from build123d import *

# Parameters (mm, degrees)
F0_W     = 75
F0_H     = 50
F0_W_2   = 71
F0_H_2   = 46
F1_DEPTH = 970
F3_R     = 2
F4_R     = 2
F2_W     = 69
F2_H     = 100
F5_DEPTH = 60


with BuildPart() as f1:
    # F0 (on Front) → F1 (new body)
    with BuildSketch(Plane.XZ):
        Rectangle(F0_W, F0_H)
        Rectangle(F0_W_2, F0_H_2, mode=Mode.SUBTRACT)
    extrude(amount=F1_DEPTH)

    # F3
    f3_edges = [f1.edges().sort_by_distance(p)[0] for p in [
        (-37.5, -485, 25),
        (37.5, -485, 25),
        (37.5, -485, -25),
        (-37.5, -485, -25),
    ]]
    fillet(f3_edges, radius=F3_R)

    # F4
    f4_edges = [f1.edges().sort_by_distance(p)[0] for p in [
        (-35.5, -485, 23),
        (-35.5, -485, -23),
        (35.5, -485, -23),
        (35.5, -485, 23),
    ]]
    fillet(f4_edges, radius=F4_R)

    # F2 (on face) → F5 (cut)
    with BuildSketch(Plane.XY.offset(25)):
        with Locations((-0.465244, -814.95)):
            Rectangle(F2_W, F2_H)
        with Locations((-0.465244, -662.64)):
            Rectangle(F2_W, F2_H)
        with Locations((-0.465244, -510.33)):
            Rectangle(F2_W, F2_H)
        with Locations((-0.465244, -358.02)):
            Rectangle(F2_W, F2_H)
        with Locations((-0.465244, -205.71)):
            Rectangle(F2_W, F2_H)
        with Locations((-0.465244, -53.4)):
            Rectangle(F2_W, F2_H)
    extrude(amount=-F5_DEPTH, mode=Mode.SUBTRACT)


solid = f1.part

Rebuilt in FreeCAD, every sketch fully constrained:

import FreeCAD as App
import Part
import Sketcher


def edges_at(feature, points):
    """Names of the edges that pass closest to the given points."""
    edges = feature.Shape.Edges
    near = lambda p: min(range(len(edges)), key=lambda i: edges[i].distToShape(Part.Vertex(*p))[0])
    return sorted({f"Edge{near(p) + 1}" for p in points})

doc = App.newDocument("Part")
body = doc.addObject("PartDesign::Body", "Body")

sketch1 = body.newObject("Sketcher::SketchObject", "Sketch")
sketch1.AttachmentSupport = (doc.getObject("XZ_Plane"), [""])
sketch1.MapMode = "FlatFace"
sketch1.addGeometry([
    Part.LineSegment(App.Vector(-38, 25, 0), App.Vector(-38, -25, 0)),
    Part.LineSegment(App.Vector(-38, -25, 0), App.Vector(38, -25, 0)),
    Part.LineSegment(App.Vector(38, -25, 0), App.Vector(38, 25, 0)),
    Part.LineSegment(App.Vector(38, 25, 0), App.Vector(-38, 25, 0)),
    Part.LineSegment(App.Vector(36, -23, 0), App.Vector(-36, -23, 0)),
    Part.LineSegment(App.Vector(-36, -23, 0), App.Vector(-36, 23, 0)),
    Part.LineSegment(App.Vector(-36, 23, 0), App.Vector(36, 23, 0)),
    Part.LineSegment(App.Vector(36, 23, 0), App.Vector(36, -23, 0)),
], False)
sketch1.addConstraint([
    Sketcher.Constraint("Coincident", 0, 2, 1, 1),
    Sketcher.Constraint("Coincident", 1, 2, 2, 1),
    Sketcher.Constraint("Coincident", 2, 2, 3, 1),
    Sketcher.Constraint("Coincident", 3, 2, 0, 1),
    Sketcher.Constraint("Coincident", 4, 2, 5, 1),
    Sketcher.Constraint("Coincident", 5, 2, 6, 1),
    Sketcher.Constraint("Coincident", 6, 2, 7, 1),
    Sketcher.Constraint("Coincident", 7, 2, 4, 1),
    Sketcher.Constraint("Vertical", 0),
    Sketcher.Constraint("Horizontal", 1),
    Sketcher.Constraint("Vertical", 2),
    Sketcher.Constraint("Horizontal", 3),
    Sketcher.Constraint("Horizontal", 4),
    Sketcher.Constraint("Vertical", 5),
    Sketcher.Constraint("Horizontal", 6),
    Sketcher.Constraint("Vertical", 7),
    Sketcher.Constraint("Symmetric", 0, 2, 2, 2, -1, 1),
    Sketcher.Constraint("Symmetric", 4, 2, 6, 2, -1, 1),
    Sketcher.Constraint("DistanceX", 1, 1, 1, 2, 75.0),
    Sketcher.Constraint("DistanceX", 4, 2, 4, 1, 71.0),
    Sketcher.Constraint("DistanceY", 0, 2, 0, 1, 50.0),
    Sketcher.Constraint("DistanceY", 5, 1, 5, 2, 46.0),
])
pad1 = body.newObject("PartDesign::Pad", "Pad")
pad1.Profile = sketch1
pad1.Length = 970
doc.recompute()

fillet = body.newObject("PartDesign::Fillet", "Fillet")
fillet.Base = (pad1, edges_at(pad1, [
    (-37.5, -485, 25),
    (37.5, -485, 25),
    (37.5, -485, -25),
    (-37.5, -485, -25),
]))
fillet.Radius = 2
doc.recompute()

fillet2 = body.newObject("PartDesign::Fillet", "Fillet001")
fillet2.Base = (fillet, edges_at(fillet, [
    (-35.5, -485, 23),
    (-35.5, -485, -23),
    (35.5, -485, -23),
    (35.5, -485, 23),
]))
fillet2.Radius = 2

sketch2 = body.newObject("Sketcher::SketchObject", "Sketch001")
sketch2.AttachmentSupport = (doc.getObject("XY_Plane"), [""])
sketch2.MapMode = "FlatFace"
sketch2.AttachmentOffset = App.Placement(App.Vector(0, 0, 25), App.Rotation())
sketch2.addGeometry([
    Part.LineSegment(App.Vector(-35, -765, 0), App.Vector(-35, -865, 0)),
    Part.LineSegment(App.Vector(-35, -865, 0), App.Vector(34, -865, 0)),
    Part.LineSegment(App.Vector(34, -865, 0), App.Vector(34, -765, 0)),
    Part.LineSegment(App.Vector(34, -765, 0), App.Vector(-35, -765, 0)),
    Part.LineSegment(App.Vector(-35, -613, 0), App.Vector(-35, -713, 0)),
    Part.LineSegment(App.Vector(-35, -713, 0), App.Vector(34, -713, 0)),
    Part.LineSegment(App.Vector(34, -713, 0), App.Vector(34, -613, 0)),
    Part.LineSegment(App.Vector(34, -613, 0), App.Vector(-35, -613, 0)),
    Part.LineSegment(App.Vector(-35, -460, 0), App.Vector(-35, -560, 0)),
    Part.LineSegment(App.Vector(-35, -560, 0), App.Vector(34, -560, 0)),
    Part.LineSegment(App.Vector(34, -560, 0), App.Vector(34, -460, 0)),
    Part.LineSegment(App.Vector(34, -460, 0), App.Vector(-35, -460, 0)),
    Part.LineSegment(App.Vector(-35, -308, 0), App.Vector(-35, -408, 0)),
    Part.LineSegment(App.Vector(-35, -408, 0), App.Vector(34, -408, 0)),
    Part.LineSegment(App.Vector(34, -408, 0), App.Vector(34, -308, 0)),
    Part.LineSegment(App.Vector(34, -308, 0), App.Vector(-35, -308, 0)),
    Part.LineSegment(App.Vector(-35, -156, 0), App.Vector(-35, -256, 0)),
    Part.LineSegment(App.Vector(-35, -256, 0), App.Vector(34, -256, 0)),
    Part.LineSegment(App.Vector(34, -256, 0), App.Vector(34, -156, 0)),
    Part.LineSegment(App.Vector(34, -156, 0), App.Vector(-35, -156, 0)),
    Part.LineSegment(App.Vector(-35, -3, 0), App.Vector(-35, -103, 0)),
    Part.LineSegment(App.Vector(-35, -103, 0), App.Vector(34, -103, 0)),
    Part.LineSegment(App.Vector(34, -103, 0), App.Vector(34, -3, 0)),
    Part.LineSegment(App.Vector(34, -3, 0), App.Vector(-35, -3, 0)),
], False)
sketch2.addConstraint([
    Sketcher.Constraint("Coincident", 0, 2, 1, 1),
    Sketcher.Constraint("Coincident", 1, 2, 2, 1),
    Sketcher.Constraint("Coincident", 2, 2, 3, 1),
    Sketcher.Constraint("Coincident", 3, 2, 0, 1),
    Sketcher.Constraint("Coincident", 4, 2, 5, 1),
    Sketcher.Constraint("Coincident", 5, 2, 6, 1),
    Sketcher.Constraint("Coincident", 6, 2, 7, 1),
    Sketcher.Constraint("Coincident", 7, 2, 4, 1),
    Sketcher.Constraint("Coincident", 8, 2, 9, 1),
    Sketcher.Constraint("Coincident", 9, 2, 10, 1),
    Sketcher.Constraint("Coincident", 10, 2, 11, 1),
    Sketcher.Constraint("Coincident", 11, 2, 8, 1),
    Sketcher.Constraint("Coincident", 12, 2, 13, 1),
    Sketcher.Constraint("Coincident", 13, 2, 14, 1),
    Sketcher.Constraint("Coincident", 14, 2, 15, 1),
    Sketcher.Constraint("Coincident", 15, 2, 12, 1),
    Sketcher.Constraint("Coincident", 16, 2, 17, 1),
    Sketcher.Constraint("Coincident", 17, 2, 18, 1),
    Sketcher.Constraint("Coincident", 18, 2, 19, 1),
    Sketcher.Constraint("Coincident", 19, 2, 16, 1),
    Sketcher.Constraint("Coincident", 20, 2, 21, 1),
    Sketcher.Constraint("Coincident", 21, 2, 22, 1),
    Sketcher.Constraint("Coincident", 22, 2, 23, 1),
    Sketcher.Constraint("Coincident", 23, 2, 20, 1),
    Sketcher.Constraint("Vertical", 0),
    Sketcher.Constraint("Horizontal", 1),
    Sketcher.Constraint("Vertical", 2),
    Sketcher.Constraint("Horizontal", 3),
    Sketcher.Constraint("Vertical", 4),
    Sketcher.Constraint("Horizontal", 5),
    Sketcher.Constraint("Vertical", 6),
    Sketcher.Constraint("Horizontal", 7),
    Sketcher.Constraint("Vertical", 8),
    Sketcher.Constraint("Horizontal", 9),
    Sketcher.Constraint("Vertical", 10),
    Sketcher.Constraint("Horizontal", 11),
    Sketcher.Constraint("Vertical", 12),
    Sketcher.Constraint("Horizontal", 13),
    Sketcher.Constraint("Vertical", 14),
    Sketcher.Constraint("Horizontal", 15),
    Sketcher.Constraint("Vertical", 16),
    Sketcher.Constraint("Horizontal", 17),
    Sketcher.Constraint("Vertical", 18),
    Sketcher.Constraint("Horizontal", 19),
    Sketcher.Constraint("Vertical", 20),
    Sketcher.Constraint("Horizontal", 21),
    Sketcher.Constraint("Vertical", 22),
    Sketcher.Constraint("Horizontal", 23),
    Sketcher.Constraint("Vertical", 3, 2, 4, 2),
    Sketcher.Constraint("Vertical", 2, 2, 5, 2),
    Sketcher.Constraint("Vertical", 7, 2, 8, 2),
    Sketcher.Constraint("Vertical", 6, 2, 9, 2),
    Sketcher.Constraint("Vertical", 11, 2, 12, 2),
    Sketcher.Constraint("Vertical", 10, 2, 13, 2),
    Sketcher.Constraint("Vertical", 15, 2, 16, 2),
    Sketcher.Constraint("Vertical", 14, 2, 17, 2),
    Sketcher.Constraint("Vertical", 19, 2, 20, 2),
    Sketcher.Constraint("Vertical", 18, 2, 21, 2),
    Sketcher.Constraint("Equal", 2, 4),
    Sketcher.Constraint("Equal", 6, 8),
    Sketcher.Constraint("Equal", 10, 12),
    Sketcher.Constraint("Equal", 14, 16),
    Sketcher.Constraint("Equal", 18, 20),
    Sketcher.Constraint("DistanceX", 1, 1, 1, 2, 69.0),
    Sketcher.Constraint("DistanceY", 0, 2, 0, 1, 100.0),
    Sketcher.Constraint("DistanceY", 20, 2, -1, 1, 103.4),
    Sketcher.Constraint("DistanceY", 0, 2, -1, 1, 864.95),
    Sketcher.Constraint("DistanceY", 4, 2, -1, 1, 712.64),
    Sketcher.Constraint("DistanceY", 8, 2, -1, 1, 560.33),
    Sketcher.Constraint("DistanceY", 12, 2, -1, 1, 408.02),
    Sketcher.Constraint("DistanceY", 16, 2, -1, 1, 255.71),
    Sketcher.Constraint("DistanceX", 0, 2, -1, 1, 34.965244),
])
pocket1 = body.newObject("PartDesign::Pocket", "Pocket")
pocket1.Profile = sketch2
pocket1.Length = 60

doc.recompute()
